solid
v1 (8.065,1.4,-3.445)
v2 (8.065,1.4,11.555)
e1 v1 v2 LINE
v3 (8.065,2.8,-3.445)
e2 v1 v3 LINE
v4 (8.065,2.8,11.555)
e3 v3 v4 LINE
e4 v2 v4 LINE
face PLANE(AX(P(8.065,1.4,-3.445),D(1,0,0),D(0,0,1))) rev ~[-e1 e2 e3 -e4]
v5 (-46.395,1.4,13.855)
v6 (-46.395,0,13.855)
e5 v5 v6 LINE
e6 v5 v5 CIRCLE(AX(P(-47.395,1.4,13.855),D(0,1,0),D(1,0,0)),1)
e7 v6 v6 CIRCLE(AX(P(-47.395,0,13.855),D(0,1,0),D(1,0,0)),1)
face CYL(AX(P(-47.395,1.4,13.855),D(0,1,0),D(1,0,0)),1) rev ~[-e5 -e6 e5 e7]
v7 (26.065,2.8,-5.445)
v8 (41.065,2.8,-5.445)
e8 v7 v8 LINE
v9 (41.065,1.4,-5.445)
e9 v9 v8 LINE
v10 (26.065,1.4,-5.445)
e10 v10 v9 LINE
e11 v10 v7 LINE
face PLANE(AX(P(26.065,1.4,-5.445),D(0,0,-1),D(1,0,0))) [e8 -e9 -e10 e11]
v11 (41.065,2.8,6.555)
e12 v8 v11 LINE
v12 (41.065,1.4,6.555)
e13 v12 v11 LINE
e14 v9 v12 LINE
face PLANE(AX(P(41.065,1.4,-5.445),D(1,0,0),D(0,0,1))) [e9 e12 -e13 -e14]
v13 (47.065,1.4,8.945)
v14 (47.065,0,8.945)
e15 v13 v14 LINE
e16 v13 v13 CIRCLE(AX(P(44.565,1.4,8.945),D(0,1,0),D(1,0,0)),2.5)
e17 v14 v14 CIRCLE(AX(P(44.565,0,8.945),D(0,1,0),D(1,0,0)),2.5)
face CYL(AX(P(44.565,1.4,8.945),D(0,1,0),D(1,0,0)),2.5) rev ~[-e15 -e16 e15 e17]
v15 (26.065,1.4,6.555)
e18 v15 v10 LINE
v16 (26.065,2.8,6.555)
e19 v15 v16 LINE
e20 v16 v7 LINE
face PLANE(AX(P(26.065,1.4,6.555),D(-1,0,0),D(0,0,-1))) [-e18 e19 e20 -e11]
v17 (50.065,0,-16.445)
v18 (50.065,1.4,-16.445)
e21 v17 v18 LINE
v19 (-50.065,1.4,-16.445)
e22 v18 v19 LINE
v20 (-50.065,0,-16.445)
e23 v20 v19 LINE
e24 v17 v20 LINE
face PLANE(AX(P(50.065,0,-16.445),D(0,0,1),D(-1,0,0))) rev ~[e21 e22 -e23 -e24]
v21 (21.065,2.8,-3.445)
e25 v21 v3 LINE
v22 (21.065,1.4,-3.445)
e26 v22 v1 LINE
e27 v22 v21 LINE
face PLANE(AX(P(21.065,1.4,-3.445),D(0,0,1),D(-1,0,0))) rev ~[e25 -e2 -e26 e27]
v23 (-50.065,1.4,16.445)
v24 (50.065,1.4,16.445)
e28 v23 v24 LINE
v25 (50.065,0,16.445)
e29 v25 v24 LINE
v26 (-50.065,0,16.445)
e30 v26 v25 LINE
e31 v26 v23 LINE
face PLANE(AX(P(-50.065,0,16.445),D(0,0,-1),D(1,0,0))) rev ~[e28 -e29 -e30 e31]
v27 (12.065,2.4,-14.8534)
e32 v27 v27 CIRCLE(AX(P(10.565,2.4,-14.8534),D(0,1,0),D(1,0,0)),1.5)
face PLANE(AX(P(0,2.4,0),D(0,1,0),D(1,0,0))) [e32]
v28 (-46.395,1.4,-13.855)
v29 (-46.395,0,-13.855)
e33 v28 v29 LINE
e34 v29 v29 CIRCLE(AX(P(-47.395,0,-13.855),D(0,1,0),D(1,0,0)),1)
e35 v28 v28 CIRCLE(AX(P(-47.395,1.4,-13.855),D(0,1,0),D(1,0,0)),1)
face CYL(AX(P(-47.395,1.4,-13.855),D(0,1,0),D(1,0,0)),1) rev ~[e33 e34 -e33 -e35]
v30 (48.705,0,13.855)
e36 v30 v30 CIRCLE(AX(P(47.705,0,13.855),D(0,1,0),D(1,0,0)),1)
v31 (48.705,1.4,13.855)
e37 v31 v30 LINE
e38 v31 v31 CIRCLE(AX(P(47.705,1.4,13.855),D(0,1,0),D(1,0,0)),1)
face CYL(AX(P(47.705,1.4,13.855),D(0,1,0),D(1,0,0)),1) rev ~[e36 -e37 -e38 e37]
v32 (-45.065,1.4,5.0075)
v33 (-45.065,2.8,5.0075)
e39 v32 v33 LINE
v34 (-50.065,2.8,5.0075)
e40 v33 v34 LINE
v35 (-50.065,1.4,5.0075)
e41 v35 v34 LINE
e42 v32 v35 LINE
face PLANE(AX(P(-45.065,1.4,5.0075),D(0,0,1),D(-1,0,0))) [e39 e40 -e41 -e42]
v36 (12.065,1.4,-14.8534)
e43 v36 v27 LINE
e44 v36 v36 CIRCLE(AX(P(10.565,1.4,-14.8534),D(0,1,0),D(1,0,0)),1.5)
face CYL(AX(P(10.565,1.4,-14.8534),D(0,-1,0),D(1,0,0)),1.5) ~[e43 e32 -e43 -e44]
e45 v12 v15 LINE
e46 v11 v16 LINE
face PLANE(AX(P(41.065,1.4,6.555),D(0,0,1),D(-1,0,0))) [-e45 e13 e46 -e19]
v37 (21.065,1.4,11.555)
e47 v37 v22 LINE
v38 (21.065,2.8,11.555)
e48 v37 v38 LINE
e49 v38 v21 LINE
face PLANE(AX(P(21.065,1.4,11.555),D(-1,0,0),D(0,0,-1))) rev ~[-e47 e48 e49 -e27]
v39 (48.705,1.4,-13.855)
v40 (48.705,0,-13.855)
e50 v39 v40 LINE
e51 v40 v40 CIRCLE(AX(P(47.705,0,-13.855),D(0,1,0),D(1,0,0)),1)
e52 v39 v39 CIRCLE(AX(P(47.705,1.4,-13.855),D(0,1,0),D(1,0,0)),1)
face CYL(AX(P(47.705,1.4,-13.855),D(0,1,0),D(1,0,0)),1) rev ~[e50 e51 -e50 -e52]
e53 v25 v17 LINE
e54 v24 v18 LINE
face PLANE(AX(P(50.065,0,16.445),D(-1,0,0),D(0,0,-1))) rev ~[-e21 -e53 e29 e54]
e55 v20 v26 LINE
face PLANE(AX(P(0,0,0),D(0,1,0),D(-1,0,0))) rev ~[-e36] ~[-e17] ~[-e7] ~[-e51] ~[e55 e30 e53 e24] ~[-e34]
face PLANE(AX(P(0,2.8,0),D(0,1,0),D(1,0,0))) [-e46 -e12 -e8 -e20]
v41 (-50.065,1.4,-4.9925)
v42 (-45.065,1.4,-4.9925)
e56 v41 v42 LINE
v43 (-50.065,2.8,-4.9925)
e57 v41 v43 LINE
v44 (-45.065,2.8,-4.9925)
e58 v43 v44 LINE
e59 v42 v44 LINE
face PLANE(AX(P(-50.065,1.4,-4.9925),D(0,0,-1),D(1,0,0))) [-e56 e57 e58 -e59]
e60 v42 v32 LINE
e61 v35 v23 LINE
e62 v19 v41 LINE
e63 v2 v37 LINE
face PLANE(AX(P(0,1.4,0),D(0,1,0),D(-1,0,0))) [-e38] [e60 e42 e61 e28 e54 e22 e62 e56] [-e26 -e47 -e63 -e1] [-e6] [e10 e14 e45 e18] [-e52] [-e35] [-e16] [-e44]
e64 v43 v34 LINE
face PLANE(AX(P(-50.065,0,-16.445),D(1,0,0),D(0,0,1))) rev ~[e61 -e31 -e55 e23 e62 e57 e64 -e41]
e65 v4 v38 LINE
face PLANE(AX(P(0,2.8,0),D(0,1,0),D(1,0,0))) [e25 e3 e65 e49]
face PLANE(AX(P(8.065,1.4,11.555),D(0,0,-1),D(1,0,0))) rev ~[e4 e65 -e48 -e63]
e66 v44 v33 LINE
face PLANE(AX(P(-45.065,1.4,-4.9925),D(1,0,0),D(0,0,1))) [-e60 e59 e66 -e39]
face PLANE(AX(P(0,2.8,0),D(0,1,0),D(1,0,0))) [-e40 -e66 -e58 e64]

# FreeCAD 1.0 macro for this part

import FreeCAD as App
import Part
import Sketcher
from FreeCAD import Vector

doc = App.newDocument("Part")
body = doc.addObject("PartDesign::Body", "Body")

# Sketch on XZ plane
sketch1 = body.newObject("Sketcher::SketchObject", "Sketch")
sketch1.AttachmentSupport = (doc.getObject("XZ_Plane"), [""])
sketch1.MapMode = "FlatFace"
sketch1.addGeometry([
    Part.LineSegment(Vector(-50, -16, 0), Vector(-50, 16, 0)),
    Part.LineSegment(Vector(-50, 16, 0), Vector(50, 16, 0)),
    Part.LineSegment(Vector(50, 16, 0), Vector(50, -16, 0)),
    Part.LineSegment(Vector(50, -16, 0), Vector(-50, -16, 0)),
], False)
sketch1.addConstraint([
    Sketcher.Constraint("Coincident", 0, 2, 1, 1),
    Sketcher.Constraint("Coincident", 1, 2, 2, 1),
    Sketcher.Constraint("Coincident", 2, 2, 3, 1),
    Sketcher.Constraint("Coincident", 3, 2, 0, 1),
    Sketcher.Constraint("Vertical", 0),
    Sketcher.Constraint("Horizontal", 1),
    Sketcher.Constraint("Vertical", 2),
    Sketcher.Constraint("Horizontal", 3),
    Sketcher.Constraint("Symmetric", 0, 2, 2, 2, -1, 1),
    Sketcher.Constraint("DistanceX", 1, 1, 1, 2, 100.13),
    Sketcher.Constraint("DistanceY", 0, 1, 0, 2, 32.89),
])
pad1 = body.newObject("PartDesign::Pad", "Pad")
pad1.Profile = sketch1
pad1.Length = 1.4
pad1.Reversed = True

# Sketch on XZ plane
sketch2 = body.newObject("Sketcher::SketchObject", "Sketch001")
sketch2.AttachmentSupport = (doc.getObject("XZ_Plane"), [""])
sketch2.MapMode = "FlatFace"
sketch2.AttachmentOffset = App.Placement(Vector(0, 0, -1.4), App.Rotation())
sketch2.addGeometry([
    Part.Circle(Vector(-47.4, 13.9, 0), Vector(0, 0, 1), 1),
    Part.Circle(Vector(-47.4, -13.9, 0), Vector(0, 0, 1), 1),
    Part.Circle(Vector(47.7, 13.9, 0), Vector(0, 0, 1), 1),
    Part.Circle(Vector(47.7, -13.9, 0), Vector(0, 0, 1), 1),
], False)
sketch2.addConstraint([
    Sketcher.Constraint("Equal", 0, 1),
    Sketcher.Constraint("Equal", 1, 2),
    Sketcher.Constraint("Equal", 2, 3),
    Sketcher.Constraint("Symmetric", 0, 3, 1, 3, -1),
    Sketcher.Constraint("Symmetric", 2, 3, 3, 3, -1),
    Sketcher.Constraint("Horizontal", 0, 3, 2, 3),
    Sketcher.Constraint("Diameter", 0, 2.0),
    Sketcher.Constraint("DistanceX", 0, 3, 2, 3, 95.1),
    Sketcher.Constraint("DistanceY", 1, 3, 0, 3, 27.71),
    Sketcher.Constraint("DistanceX", 0, 3, -1, 1, 47.395),
])
pocket1 = body.newObject("PartDesign::Pocket", "Pocket")
pocket1.Profile = sketch2
pocket1.Length = 1.4
pocket1.Reversed = True

# Sketch on XZ plane
sketch3 = body.newObject("Sketcher::SketchObject", "Sketch002")
sketch3.AttachmentSupport = (doc.getObject("XZ_Plane"), [""])
sketch3.MapMode = "FlatFace"
sketch3.AttachmentOffset = App.Placement(Vector(0, 0, -1.4), App.Rotation())
sketch3.addGeometry([
    Part.LineSegment(Vector(-45, -5, 0), Vector(-50, -5, 0)),  # 0
    Part.LineSegment(Vector(-50, -5, 0), Vector(-50, 5, 0)),  # 1
    Part.LineSegment(Vector(-50, 5, 0), Vector(-45, 5, 0)),  # 2
    Part.LineSegment(Vector(-45, 5, 0), Vector(-45, -5, 0)),  # 3
    Part.LineSegment(Vector(8, -3, 0), Vector(8, 12, 0)),  # 4
    Part.LineSegment(Vector(8, 12, 0), Vector(21, 12, 0)),  # 5
    Part.LineSegment(Vector(21, 12, 0), Vector(21, -3, 0)),  # 6
    Part.LineSegment(Vector(21, -3, 0), Vector(8, -3, 0)),  # 7
    Part.LineSegment(Vector(26, 7, 0), Vector(41, 7, 0)),  # 8
    Part.LineSegment(Vector(41, 7, 0), Vector(41, -5, 0)),  # 9
    Part.LineSegment(Vector(41, -5, 0), Vector(26, -5, 0)),  # 10
    Part.LineSegment(Vector(26, -5, 0), Vector(26, 7, 0)),  # 11
], False)
sketch3.addConstraint([
    Sketcher.Constraint("Coincident", 0, 2, 1, 1),
    Sketcher.Constraint("Coincident", 1, 2, 2, 1),
    Sketcher.Constraint("Coincident", 2, 2, 3, 1),
    Sketcher.Constraint("Coincident", 3, 2, 0, 1),
    Sketcher.Constraint("Coincident", 4, 2, 5, 1),
    Sketcher.Constraint("Coincident", 5, 2, 6, 1),
    Sketcher.Constraint("Coincident", 6, 2, 7, 1),
    Sketcher.Constraint("Coincident", 7, 2, 4, 1),
    Sketcher.Constraint("Coincident", 8, 2, 9, 1),
    Sketcher.Constraint("Coincident", 9, 2, 10, 1),
    Sketcher.Constraint("Coincident", 10, 2, 11, 1),
    Sketcher.Constraint("Coincident", 11, 2, 8, 1),
    Sketcher.Constraint("Horizontal", 0),
    Sketcher.Constraint("Vertical", 1),
    Sketcher.Constraint("Horizontal", 2),
    Sketcher.Constraint("Vertical", 3),
    Sketcher.Constraint("Vertical", 4),
    Sketcher.Constraint("Horizontal", 5),
    Sketcher.Constraint("Vertical", 6),
    Sketcher.Constraint("Horizontal", 7),
    Sketcher.Constraint("Horizontal", 8),
    Sketcher.Constraint("Vertical", 9),
    Sketcher.Constraint("Horizontal", 10),
    Sketcher.Constraint("Vertical", 11),
    Sketcher.Constraint("Equal", 10, 4),
    Sketcher.Constraint("DistanceX", 0, 2, 0, 1, 5.0),
    Sketcher.Constraint("DistanceX", 5, 1, 5, 2, 13.0),
    Sketcher.Constraint("DistanceX", 8, 1, 8, 2, 15.0),
    Sketcher.Constraint("DistanceY", 1, 1, 1, 2, 10.0),
    Sketcher.Constraint("DistanceY", 9, 2, 9, 1, 12.0),
    Sketcher.Constraint("DistanceY", 8, 2, 5, 2, 5.0),
    Sketcher.Constraint("DistanceX", 6, 2, 10, 2, 5.0),
    Sketcher.Constraint("DistanceX", 2, 2, 4, 2, 53.13),
    Sketcher.Constraint("DistanceX", 0, 2, -1, 1, 50.065),
    Sketcher.Constraint("DistanceY", -1, 1, 4, 2, 11.555),
    Sketcher.Constraint("DistanceY", 0, 2, -1, 1, 4.9925),
])
pad2 = body.newObject("PartDesign::Pad", "Pad001")
pad2.Profile = sketch3
pad2.Length = 1.4
pad2.Reversed = True

# Sketch on XZ plane
sketch4 = body.newObject("Sketcher::SketchObject", "Sketch003")
sketch4.AttachmentSupport = (doc.getObject("XZ_Plane"), [""])
sketch4.MapMode = "FlatFace"
sketch4.AttachmentOffset = App.Placement(Vector(0, 0, -1.4), App.Rotation())
sketch4.addGeometry(Part.Circle(Vector(44.6, 8.9, 0), Vector(0, 0, 1), 2.5), False)
sketch4.addConstraint([
    Sketcher.Constraint("Diameter", 0, 5.0),
    Sketcher.Constraint("DistanceX", -1, 1, 0, 3, 44.565),
    Sketcher.Constraint("DistanceY", -1, 1, 0, 3, 8.945),
])
pocket2 = body.newObject("PartDesign::Pocket", "Pocket001")
pocket2.Profile = sketch4
pocket2.Length = 1.4
pocket2.Reversed = True

# Sketch on XZ plane
sketch5 = body.newObject("Sketcher::SketchObject", "Sketch004")
sketch5.AttachmentSupport = (doc.getObject("XZ_Plane"), [""])
sketch5.MapMode = "FlatFace"
sketch5.AttachmentOffset = App.Placement(Vector(0, 0, -1.4), App.Rotation())
sketch5.addGeometry(Part.Circle(Vector(10.6, -14.9, 0), Vector(0, 0, 1), 1.5), False)
sketch5.addConstraint([
    Sketcher.Constraint("Diameter", 0, 3.0),
    Sketcher.Constraint("DistanceX", -1, 1, 0, 3, 10.565),
    Sketcher.Constraint("DistanceY", 0, 3, -1, 1, 14.8534),
])
pad3 = body.newObject("PartDesign::Pad", "Pad002")
pad3.Profile = sketch5
pad3.Length = 1
pad3.Reversed = True

doc.recompute()
